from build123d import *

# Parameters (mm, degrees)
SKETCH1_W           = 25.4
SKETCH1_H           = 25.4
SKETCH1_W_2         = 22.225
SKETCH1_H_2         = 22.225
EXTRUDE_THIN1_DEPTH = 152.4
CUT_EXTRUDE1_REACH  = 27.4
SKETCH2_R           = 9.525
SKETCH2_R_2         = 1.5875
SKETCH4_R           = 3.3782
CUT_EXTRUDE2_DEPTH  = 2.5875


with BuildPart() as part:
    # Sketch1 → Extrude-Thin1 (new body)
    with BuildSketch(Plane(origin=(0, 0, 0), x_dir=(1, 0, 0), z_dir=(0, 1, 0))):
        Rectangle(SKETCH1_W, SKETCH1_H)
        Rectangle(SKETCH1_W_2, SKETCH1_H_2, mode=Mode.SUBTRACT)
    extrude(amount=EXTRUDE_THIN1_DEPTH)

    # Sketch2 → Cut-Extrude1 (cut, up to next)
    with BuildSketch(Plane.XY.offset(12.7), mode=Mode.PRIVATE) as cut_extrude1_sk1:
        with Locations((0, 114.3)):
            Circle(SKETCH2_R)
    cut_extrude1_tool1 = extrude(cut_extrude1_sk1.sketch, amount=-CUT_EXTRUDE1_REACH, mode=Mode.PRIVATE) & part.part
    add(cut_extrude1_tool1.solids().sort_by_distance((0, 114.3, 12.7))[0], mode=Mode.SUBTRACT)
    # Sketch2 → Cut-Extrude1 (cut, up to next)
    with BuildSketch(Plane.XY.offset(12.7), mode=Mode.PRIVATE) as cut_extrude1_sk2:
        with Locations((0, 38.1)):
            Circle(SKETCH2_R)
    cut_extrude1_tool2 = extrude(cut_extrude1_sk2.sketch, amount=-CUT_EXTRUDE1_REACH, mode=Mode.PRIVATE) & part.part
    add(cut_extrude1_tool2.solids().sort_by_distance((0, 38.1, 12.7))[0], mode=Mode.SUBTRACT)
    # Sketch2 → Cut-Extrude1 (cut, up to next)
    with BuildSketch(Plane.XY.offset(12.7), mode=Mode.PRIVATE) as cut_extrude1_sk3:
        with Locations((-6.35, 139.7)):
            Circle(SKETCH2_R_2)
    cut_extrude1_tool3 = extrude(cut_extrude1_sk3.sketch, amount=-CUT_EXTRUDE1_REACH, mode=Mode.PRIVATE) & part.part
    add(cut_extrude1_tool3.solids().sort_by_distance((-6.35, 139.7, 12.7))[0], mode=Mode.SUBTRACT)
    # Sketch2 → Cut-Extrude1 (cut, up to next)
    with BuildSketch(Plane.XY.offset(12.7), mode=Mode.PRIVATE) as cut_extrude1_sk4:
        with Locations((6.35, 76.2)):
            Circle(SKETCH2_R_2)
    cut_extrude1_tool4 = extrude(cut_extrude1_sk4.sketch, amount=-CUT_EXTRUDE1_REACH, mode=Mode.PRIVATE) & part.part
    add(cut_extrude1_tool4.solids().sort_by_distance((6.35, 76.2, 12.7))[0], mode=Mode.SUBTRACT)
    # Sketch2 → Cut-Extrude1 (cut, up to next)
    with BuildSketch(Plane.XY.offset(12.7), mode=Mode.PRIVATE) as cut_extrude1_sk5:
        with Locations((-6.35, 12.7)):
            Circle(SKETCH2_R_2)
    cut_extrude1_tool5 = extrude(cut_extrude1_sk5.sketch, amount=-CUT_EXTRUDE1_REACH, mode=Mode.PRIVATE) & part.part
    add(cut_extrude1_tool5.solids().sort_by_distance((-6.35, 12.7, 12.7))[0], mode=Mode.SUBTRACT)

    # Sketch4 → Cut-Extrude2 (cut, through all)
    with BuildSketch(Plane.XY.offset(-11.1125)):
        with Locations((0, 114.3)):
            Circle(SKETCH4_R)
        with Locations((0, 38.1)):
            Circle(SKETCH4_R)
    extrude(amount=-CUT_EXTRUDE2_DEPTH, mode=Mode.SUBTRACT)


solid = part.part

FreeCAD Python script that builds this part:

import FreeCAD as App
import Part
import Sketcher

V = App.Vector
Q = App.Units.Quantity


def add_polygon(sketch, points):
    """Adds a closed chain of lines whose ends are joined by coincident constraints."""
    first, n = sketch.GeometryCount, len(points)
    for a, b in zip(points, points[1:] + points[:1]):
        sketch.addGeometry(Part.LineSegment(App.Vector(*a, 0), App.Vector(*b, 0)), False)
    for i in range(n):
        sketch.addConstraint(Sketcher.Constraint("Coincident", first + i, 2, first + (i + 1) % n, 1))

doc = App.newDocument("Part")
body = doc.addObject("PartDesign::Body", "Body")

# Sketch on XZ plane
sketch1 = doc.addObject("Sketcher::SketchObject", "Sketch")
body.addObject(sketch1)
sketch1.AttachmentSupport = (doc.XZ_Plane, [""])
sketch1.MapMode = "FlatFace"
add_polygon(sketch1, [(-13, -13), (-13, 13), (13, 13), (13, -13)])  # lines 0-3
add_polygon(sketch1, [(11, 11), (-11, 11), (-11, -11), (11, -11)])  # lines 4-7
sketch1.addConstraint([
    Sketcher.Constraint("Vertical", 0),
    Sketcher.Constraint("Horizontal", 1),
    Sketcher.Constraint("Vertical", 2),
    Sketcher.Constraint("Horizontal", 3),
    Sketcher.Constraint("Horizontal", 4),
    Sketcher.Constraint("Vertical", 5),
    Sketcher.Constraint("Horizontal", 6),
    Sketcher.Constraint("Vertical", 7),
    Sketcher.Constraint("Symmetric", 0, 2, 2, 2, -1, 1),
    Sketcher.Constraint("Symmetric", 4, 2, 6, 2, -1, 1),
    Sketcher.Constraint("Equal", 3, 0),
    Sketcher.Constraint("Equal", 6, 5),
    Sketcher.Constraint("DistanceX", 1, 1, 1, 2, Q("1 in")),
    Sketcher.Constraint("DistanceX", 4, 2, 4, 1, Q("0.875 in")),
])
pad1 = doc.addObject("PartDesign::Pad", "Pad")
body.addObject(pad1)
pad1.Profile = sketch1
pad1.Length = Q("6 in")
pad1.Reversed = True

# Sketch on XY plane
sketch2 = doc.addObject("Sketcher::SketchObject", "Sketch001")
body.addObject(sketch2)
sketch2.AttachmentSupport = (doc.XY_Plane, [""])
sketch2.MapMode = "FlatFace"
sketch2.AttachmentOffset = App.Placement(V(0, 0, 0.5 * 25.4), App.Rotation())
sketch2.addGeometry(Part.Circle(V(0, 114, 0), V(0, 0, 1), 10), False)
sketch2.addConstraint([
    Sketcher.Constraint("PointOnObject", 0, 3, -2),
    Sketcher.Constraint("Diameter", 0, Q("0.75 in")),
    Sketcher.Constraint("DistanceY", -1, 1, 0, 3, Q("4.5 in")),
])
pocket1 = doc.addObject("PartDesign::Pocket", "Pocket")
body.addObject(pocket1)
pocket1.Profile = sketch2
pocket1.Type = "UpToFirst"

# Sketch on XY plane
sketch3 = doc.addObject("Sketcher::SketchObject", "Sketch002")
body.addObject(sketch3)
sketch3.AttachmentSupport = (doc.XY_Plane, [""])
sketch3.MapMode = "FlatFace"
sketch3.AttachmentOffset = App.Placement(V(0, 0, 0.5 * 25.4), App.Rotation())
sketch3.addGeometry(Part.Circle(V(0, 38, 0), V(0, 0, 1), 10), False)
sketch3.addConstraint([
    Sketcher.Constraint("PointOnObject", 0, 3, -2),
    Sketcher.Constraint("Diameter", 0, Q("0.75 in")),
    Sketcher.Constraint("DistanceY", -1, 1, 0, 3, Q("1.5 in")),
])
pocket2 = doc.addObject("PartDesign::Pocket", "Pocket001")
body.addObject(pocket2)
pocket2.Profile = sketch3
pocket2.Type = "UpToFirst"

# Sketch on XY plane
sketch4 = doc.addObject("Sketcher::SketchObject", "Sketch003")
body.addObject(sketch4)
sketch4.AttachmentSupport = (doc.XY_Plane, [""])
sketch4.MapMode = "FlatFace"
sketch4.AttachmentOffset = App.Placement(V(0, 0, 0.5 * 25.4), App.Rotation())
sketch4.addGeometry(Part.Circle(V(-6.3, 139.7, 0), V(0, 0, 1), 1.6), False)
sketch4.addConstraint([
    Sketcher.Constraint("Diameter", 0, Q("0.125 in")),
    Sketcher.Constraint("DistanceY", -1, 1, 0, 3, Q("5.5 in")),
    Sketcher.Constraint("DistanceX", 0, 3, -1, 1, Q("0.25 in")),
])
pocket3 = doc.addObject("PartDesign::Pocket", "Pocket002")
body.addObject(pocket3)
pocket3.Profile = sketch4
pocket3.Type = "UpToFirst"

# Sketch on XY plane
sketch5 = doc.addObject("Sketcher::SketchObject", "Sketch004")
body.addObject(sketch5)
sketch5.AttachmentSupport = (doc.XY_Plane, [""])
sketch5.MapMode = "FlatFace"
sketch5.AttachmentOffset = App.Placement(V(0, 0, 0.5 * 25.4), App.Rotation())
sketch5.addGeometry(Part.Circle(V(6.3, 76.2, 0), V(0, 0, 1), 1.6), False)
sketch5.addConstraint([
    Sketcher.Constraint("Diameter", 0, Q("0.125 in")),
    Sketcher.Constraint("DistanceY", -1, 1, 0, 3, Q("3 in")),
    Sketcher.Constraint("DistanceX", -1, 1, 0, 3, Q("0.25 in")),
])
pocket4 = doc.addObject("PartDesign::Pocket", "Pocket003")
body.addObject(pocket4)
pocket4.Profile = sketch5
pocket4.Type = "UpToFirst"

# Sketch on XY plane
sketch6 = doc.addObject("Sketcher::SketchObject", "Sketch005")
body.addObject(sketch6)
sketch6.AttachmentSupport = (doc.XY_Plane, [""])
sketch6.MapMode = "FlatFace"
sketch6.AttachmentOffset = App.Placement(V(0, 0, 0.5 * 25.4), App.Rotation())
sketch6.addGeometry(Part.Circle(V(-6.3, 12.7, 0), V(0, 0, 1), 1.6), False)
sketch6.addConstraint([
    Sketcher.Constraint("Diameter", 0, Q("0.125 in")),
    Sketcher.Constraint("DistanceY", -1, 1, 0, 3, Q("0.5 in")),
    Sketcher.Constraint("DistanceX", 0, 3, -1, 1, Q("0.25 in")),
])
pocket5 = doc.addObject("PartDesign::Pocket", "Pocket004")
body.addObject(pocket5)
pocket5.Profile = sketch6
pocket5.Type = "UpToFirst"

# Sketch on XY plane
sketch7 = doc.addObject("Sketcher::SketchObject", "Sketch006")
body.addObject(sketch7)
sketch7.AttachmentSupport = (doc.XY_Plane, [""])
sketch7.MapMode = "FlatFace"
sketch7.AttachmentOffset = App.Placement(V(0, 0, -0.4375 * 25.4), App.Rotation())
sketch7.addGeometry([
    Part.Circle(V(0, 114.3, 0), V(0, 0, 1), 3.4),
    Part.Circle(V(0, 38.1, 0), V(0, 0, 1), 3.4),
], False)
sketch7.addConstraint([
    Sketcher.Constraint("Equal", 0, 1),
    Sketcher.Constraint("PointOnObject", 0, 3, -2),
    Sketcher.Constraint("PointOnObject", 1, 3, -2),
    Sketcher.Constraint("Diameter", 0, Q("0.266 in")),
    Sketcher.Constraint("DistanceY", 1, 3, 0, 3, Q("3 in")),
    Sketcher.Constraint("DistanceY", -1, 1, 0, 3, Q("4.5 in")),
])
pocket6 = doc.addObject("PartDesign::Pocket", "Pocket005")
body.addObject(pocket6)
pocket6.Profile = sketch7
pocket6.Type = "ThroughAll"

doc.recompute()
